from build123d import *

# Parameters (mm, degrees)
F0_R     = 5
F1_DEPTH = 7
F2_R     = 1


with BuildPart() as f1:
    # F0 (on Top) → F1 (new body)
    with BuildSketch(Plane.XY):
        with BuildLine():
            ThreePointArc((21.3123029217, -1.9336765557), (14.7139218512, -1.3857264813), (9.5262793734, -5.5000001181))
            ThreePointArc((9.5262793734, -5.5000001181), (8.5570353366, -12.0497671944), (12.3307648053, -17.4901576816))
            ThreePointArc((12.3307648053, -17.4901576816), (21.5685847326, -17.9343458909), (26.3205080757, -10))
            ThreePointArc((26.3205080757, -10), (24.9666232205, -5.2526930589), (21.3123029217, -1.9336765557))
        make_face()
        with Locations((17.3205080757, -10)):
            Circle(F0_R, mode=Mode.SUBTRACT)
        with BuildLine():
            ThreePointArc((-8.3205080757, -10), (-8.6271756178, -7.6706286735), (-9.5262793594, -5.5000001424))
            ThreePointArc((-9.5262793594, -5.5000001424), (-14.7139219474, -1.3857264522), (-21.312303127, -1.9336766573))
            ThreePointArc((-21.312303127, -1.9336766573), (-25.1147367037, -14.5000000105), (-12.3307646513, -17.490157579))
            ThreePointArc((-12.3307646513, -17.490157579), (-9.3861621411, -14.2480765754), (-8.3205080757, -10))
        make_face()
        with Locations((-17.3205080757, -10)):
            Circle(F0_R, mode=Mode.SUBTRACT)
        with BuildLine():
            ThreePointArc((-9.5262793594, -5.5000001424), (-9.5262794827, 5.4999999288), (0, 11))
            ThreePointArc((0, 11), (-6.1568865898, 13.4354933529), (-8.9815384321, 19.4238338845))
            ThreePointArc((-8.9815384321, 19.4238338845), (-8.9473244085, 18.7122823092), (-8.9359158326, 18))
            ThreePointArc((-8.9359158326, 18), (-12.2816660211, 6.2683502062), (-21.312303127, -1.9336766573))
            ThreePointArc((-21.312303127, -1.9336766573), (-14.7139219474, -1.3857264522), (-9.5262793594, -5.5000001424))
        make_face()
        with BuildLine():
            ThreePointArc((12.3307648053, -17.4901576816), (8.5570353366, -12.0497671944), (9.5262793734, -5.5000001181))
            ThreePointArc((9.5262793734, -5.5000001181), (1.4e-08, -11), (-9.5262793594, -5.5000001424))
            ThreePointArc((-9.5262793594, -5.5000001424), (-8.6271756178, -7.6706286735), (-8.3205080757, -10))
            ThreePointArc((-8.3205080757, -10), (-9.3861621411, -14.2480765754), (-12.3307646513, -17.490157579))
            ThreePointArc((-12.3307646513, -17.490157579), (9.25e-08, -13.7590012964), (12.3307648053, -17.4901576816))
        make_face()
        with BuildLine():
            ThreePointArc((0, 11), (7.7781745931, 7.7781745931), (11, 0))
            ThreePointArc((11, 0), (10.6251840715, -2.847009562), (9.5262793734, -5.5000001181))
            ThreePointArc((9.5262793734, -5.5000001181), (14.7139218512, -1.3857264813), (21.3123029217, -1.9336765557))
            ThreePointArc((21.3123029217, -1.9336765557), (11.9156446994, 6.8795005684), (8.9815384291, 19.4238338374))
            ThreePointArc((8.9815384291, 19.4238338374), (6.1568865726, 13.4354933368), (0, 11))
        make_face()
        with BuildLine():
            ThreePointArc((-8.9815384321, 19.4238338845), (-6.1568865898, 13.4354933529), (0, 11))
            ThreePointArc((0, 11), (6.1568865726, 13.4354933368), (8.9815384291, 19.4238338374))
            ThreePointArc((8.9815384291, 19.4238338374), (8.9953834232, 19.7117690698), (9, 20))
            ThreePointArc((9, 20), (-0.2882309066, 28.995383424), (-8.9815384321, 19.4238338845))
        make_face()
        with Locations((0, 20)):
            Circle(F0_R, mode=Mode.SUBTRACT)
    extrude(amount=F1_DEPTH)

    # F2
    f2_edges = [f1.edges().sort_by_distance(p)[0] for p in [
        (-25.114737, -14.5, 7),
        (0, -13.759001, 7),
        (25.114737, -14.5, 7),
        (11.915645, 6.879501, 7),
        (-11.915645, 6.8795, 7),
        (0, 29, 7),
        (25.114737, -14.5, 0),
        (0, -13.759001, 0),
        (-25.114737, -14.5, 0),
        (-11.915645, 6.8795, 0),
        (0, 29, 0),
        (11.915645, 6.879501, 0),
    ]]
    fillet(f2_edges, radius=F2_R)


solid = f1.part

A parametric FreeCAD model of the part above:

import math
import FreeCAD as App
import Part
import Sketcher
Q = App.Units.Quantity


def edges_at(feature, points):
    """Names of the edges that pass closest to the given points."""
    edges = feature.Shape.Edges
    near = lambda p: min(range(len(edges)), key=lambda i: edges[i].distToShape(Part.Vertex(*p))[0])
    return sorted({f"Edge{near(p) + 1}" for p in points})

doc = App.newDocument("Part")
body = doc.addObject("PartDesign::Body", "Body")

sketch1 = body.newObject("Sketcher::SketchObject", "Sketch")
sketch1.AttachmentSupport = (doc.getObject("XY_Plane"), [""])
sketch1.MapMode = "FlatFace"
sketch1.addGeometry(Part.ArcOfCircle(Part.Circle(App.Vector(31.2, 18, 0), App.Vector(0, 0, 1), 22.2), math.radians(176), math.radians(244)), False)
sketch1.addGeometry(Part.ArcOfCircle(Part.Circle(App.Vector(0, 20, 0), App.Vector(0, 0, 1), 9), math.radians(-3.67), math.radians(0)), False)
sketch1.addGeometry(Part.ArcOfCircle(Part.Circle(App.Vector(0, 20, 0), App.Vector(0, 0, 1), 9), math.radians(0), math.radians(184)), False)
sketch1.addGeometry(Part.ArcOfCircle(Part.Circle(App.Vector(-31.2, 18, 0), App.Vector(0, 0, 1), 22.2), math.radians(0), math.radians(3.67)), False)
sketch1.addGeometry(Part.ArcOfCircle(Part.Circle(App.Vector(-31.2, 18, 0), App.Vector(0, 0, 1), 22.2), math.radians(-64), math.radians(0)), False)
sketch1.addGeometry(Part.ArcOfCircle(Part.Circle(App.Vector(-17.3, -10, 0), App.Vector(0, 0, 1), 9), math.radians(116), math.radians(304)), False)
sketch1.addGeometry(Part.ArcOfCircle(Part.Circle(App.Vector(0, -36, 0), App.Vector(0, 0, 1), 22.2), math.radians(56), math.radians(124)), False)
sketch1.addGeometry(Part.ArcOfCircle(Part.Circle(App.Vector(17.3, -10, 0), App.Vector(0, 0, 1), 9), math.radians(-124), math.radians(0)), False)
sketch1.addGeometry(Part.ArcOfCircle(Part.Circle(App.Vector(17.3, -10, 0), App.Vector(0, 0, 1), 9), math.radians(0), math.radians(64)), False)
sketch1.addGeometry(Part.Circle(App.Vector(-17.3, -10, 0), App.Vector(0, 0, 1), 5), False)
sketch1.addGeometry(Part.Circle(App.Vector(17.3, -10, 0), App.Vector(0, 0, 1), 5), False)
sketch1.addGeometry(Part.ArcOfCircle(Part.Circle(App.Vector(0, 0, 0), App.Vector(0, 0, 1), 11), math.radians(90), math.radians(330)), False)
sketch1.addGeometry(Part.ArcOfCircle(Part.Circle(App.Vector(0, 0, 0), App.Vector(0, 0, 1), 11), math.radians(0), math.radians(90)), False)
sketch1.addGeometry(Part.ArcOfCircle(Part.Circle(App.Vector(0, 0, 0), App.Vector(0, 0, 1), 11), math.radians(-30), math.radians(0)), False)
sketch1.addGeometry(Part.Circle(App.Vector(0, 20, 0), App.Vector(0, 0, 1), 5), False)
sketch1.addConstraint(Sketcher.Constraint("Tangent", 0, 1, 1, 1))
sketch1.addConstraint(Sketcher.Constraint("Tangent", 1, 2, 2, 1))
sketch1.addConstraint(Sketcher.Constraint("Tangent", 2, 2, 3, 2))
sketch1.addConstraint(Sketcher.Constraint("Tangent", 3, 1, 4, 2))
sketch1.addConstraint(Sketcher.Constraint("Tangent", 4, 1, 5, 1))
sketch1.addConstraint(Sketcher.Constraint("Tangent", 5, 2, 6, 2))
sketch1.addConstraint(Sketcher.Constraint("Tangent", 6, 1, 7, 1))
sketch1.addConstraint(Sketcher.Constraint("Tangent", 7, 2, 8, 1))
sketch1.addConstraint(Sketcher.Constraint("Tangent", 8, 2, 0, 2))
sketch1.addConstraint(Sketcher.Constraint("Tangent", 11, 1, 12, 2))
sketch1.addConstraint(Sketcher.Constraint("Tangent", 12, 1, 13, 2))
sketch1.addConstraint(Sketcher.Constraint("Tangent", 13, 1, 11, 2))
sketch1.addConstraint(Sketcher.Constraint("Coincident", 11, 3, -1, 1))
sketch1.addConstraint(Sketcher.Constraint("Coincident", 9, 3, 5, 3))
sketch1.addConstraint(Sketcher.Constraint("Coincident", 10, 3, 7, 3))
sketch1.addConstraint(Sketcher.Constraint("Coincident", 14, 3, 1, 3))
sketch1.addConstraint(Sketcher.Constraint("Equal", 1, 2))
sketch1.addConstraint(Sketcher.Constraint("Equal", 0, 3))
sketch1.addConstraint(Sketcher.Constraint("Equal", 3, 4))
sketch1.addConstraint(Sketcher.Constraint("Equal", 2, 5))
sketch1.addConstraint(Sketcher.Constraint("Equal", 4, 6))
sketch1.addConstraint(Sketcher.Constraint("Equal", 5, 7))
sketch1.addConstraint(Sketcher.Constraint("Equal", 7, 8))
sketch1.addConstraint(Sketcher.Constraint("Equal", 9, 10))
sketch1.addConstraint(Sketcher.Constraint("Equal", 10, 14))
sketch1.addConstraint(Sketcher.Constraint("Symmetric", 0, 3, 3, 3, -2))
sketch1.addConstraint(Sketcher.Constraint("PointOnObject", 6, 3, -2))
sketch1.addConstraint(Sketcher.Constraint("PointOnObject", 11, 1, -2))
sketch1.addConstraint(Sketcher.Constraint("PointOnObject", 12, 1, -1))
sketch1.addConstraint(Sketcher.Constraint("Horizontal", 14, 3, 1, 2))
sketch1.addConstraint(Sketcher.Constraint("Horizontal", 4, 3, 3, 1))
sketch1.addConstraint(Sketcher.Constraint("Horizontal", 10, 3, 7, 2))
sketch1.addConstraint(Sketcher.Constraint("Diameter", 9, Q("10 mm")))
sketch1.addConstraint(Sketcher.Constraint("Radius", 1, Q("9 mm")))
sketch1.addConstraint(Sketcher.Constraint("Radius", 11, Q("11 mm")))
sketch1.addConstraint(Sketcher.Constraint("DistanceY", -1, 1, 0, 3, Q("18 mm")))
sketch1.addConstraint(Sketcher.Constraint("DistanceY", -1, 1, 1, 3, Q("20 mm")))
sketch1.addConstraint(Sketcher.Constraint("DistanceY", 5, 3, -1, 1, Q("10 mm")))
sketch1.addConstraint(Sketcher.Constraint("DistanceY", 6, 3, -1, 1, Q("36 mm")))
sketch1.addConstraint(Sketcher.Constraint("DistanceY", 13, 1, -1, 1, Q("5.5 mm")))
pad1 = body.newObject("PartDesign::Pad", "Pad")
pad1.Profile = sketch1
pad1.Length = 7
doc.recompute()

fillet = body.newObject("PartDesign::Fillet", "Fillet")
fillet.Base = (pad1, edges_at(pad1, [
    (-25.115, -14.5, 7),
    (0, -13.759, 7),
    (21.569, -17.934, 7),
    (11.916, 6.88, 7),
    (-12.282, 6.268, 7),
    (-0.288, 28.995, 7),
    (21.569, -17.934, 0),
    (0, -13.759, 0),
    (-25.115, -14.5, 0),
    (-12.282, 6.268, 0),
    (-0.288, 28.995, 0),
    (11.916, 6.88, 0),
]))
fillet.Radius = 1

doc.recompute()
